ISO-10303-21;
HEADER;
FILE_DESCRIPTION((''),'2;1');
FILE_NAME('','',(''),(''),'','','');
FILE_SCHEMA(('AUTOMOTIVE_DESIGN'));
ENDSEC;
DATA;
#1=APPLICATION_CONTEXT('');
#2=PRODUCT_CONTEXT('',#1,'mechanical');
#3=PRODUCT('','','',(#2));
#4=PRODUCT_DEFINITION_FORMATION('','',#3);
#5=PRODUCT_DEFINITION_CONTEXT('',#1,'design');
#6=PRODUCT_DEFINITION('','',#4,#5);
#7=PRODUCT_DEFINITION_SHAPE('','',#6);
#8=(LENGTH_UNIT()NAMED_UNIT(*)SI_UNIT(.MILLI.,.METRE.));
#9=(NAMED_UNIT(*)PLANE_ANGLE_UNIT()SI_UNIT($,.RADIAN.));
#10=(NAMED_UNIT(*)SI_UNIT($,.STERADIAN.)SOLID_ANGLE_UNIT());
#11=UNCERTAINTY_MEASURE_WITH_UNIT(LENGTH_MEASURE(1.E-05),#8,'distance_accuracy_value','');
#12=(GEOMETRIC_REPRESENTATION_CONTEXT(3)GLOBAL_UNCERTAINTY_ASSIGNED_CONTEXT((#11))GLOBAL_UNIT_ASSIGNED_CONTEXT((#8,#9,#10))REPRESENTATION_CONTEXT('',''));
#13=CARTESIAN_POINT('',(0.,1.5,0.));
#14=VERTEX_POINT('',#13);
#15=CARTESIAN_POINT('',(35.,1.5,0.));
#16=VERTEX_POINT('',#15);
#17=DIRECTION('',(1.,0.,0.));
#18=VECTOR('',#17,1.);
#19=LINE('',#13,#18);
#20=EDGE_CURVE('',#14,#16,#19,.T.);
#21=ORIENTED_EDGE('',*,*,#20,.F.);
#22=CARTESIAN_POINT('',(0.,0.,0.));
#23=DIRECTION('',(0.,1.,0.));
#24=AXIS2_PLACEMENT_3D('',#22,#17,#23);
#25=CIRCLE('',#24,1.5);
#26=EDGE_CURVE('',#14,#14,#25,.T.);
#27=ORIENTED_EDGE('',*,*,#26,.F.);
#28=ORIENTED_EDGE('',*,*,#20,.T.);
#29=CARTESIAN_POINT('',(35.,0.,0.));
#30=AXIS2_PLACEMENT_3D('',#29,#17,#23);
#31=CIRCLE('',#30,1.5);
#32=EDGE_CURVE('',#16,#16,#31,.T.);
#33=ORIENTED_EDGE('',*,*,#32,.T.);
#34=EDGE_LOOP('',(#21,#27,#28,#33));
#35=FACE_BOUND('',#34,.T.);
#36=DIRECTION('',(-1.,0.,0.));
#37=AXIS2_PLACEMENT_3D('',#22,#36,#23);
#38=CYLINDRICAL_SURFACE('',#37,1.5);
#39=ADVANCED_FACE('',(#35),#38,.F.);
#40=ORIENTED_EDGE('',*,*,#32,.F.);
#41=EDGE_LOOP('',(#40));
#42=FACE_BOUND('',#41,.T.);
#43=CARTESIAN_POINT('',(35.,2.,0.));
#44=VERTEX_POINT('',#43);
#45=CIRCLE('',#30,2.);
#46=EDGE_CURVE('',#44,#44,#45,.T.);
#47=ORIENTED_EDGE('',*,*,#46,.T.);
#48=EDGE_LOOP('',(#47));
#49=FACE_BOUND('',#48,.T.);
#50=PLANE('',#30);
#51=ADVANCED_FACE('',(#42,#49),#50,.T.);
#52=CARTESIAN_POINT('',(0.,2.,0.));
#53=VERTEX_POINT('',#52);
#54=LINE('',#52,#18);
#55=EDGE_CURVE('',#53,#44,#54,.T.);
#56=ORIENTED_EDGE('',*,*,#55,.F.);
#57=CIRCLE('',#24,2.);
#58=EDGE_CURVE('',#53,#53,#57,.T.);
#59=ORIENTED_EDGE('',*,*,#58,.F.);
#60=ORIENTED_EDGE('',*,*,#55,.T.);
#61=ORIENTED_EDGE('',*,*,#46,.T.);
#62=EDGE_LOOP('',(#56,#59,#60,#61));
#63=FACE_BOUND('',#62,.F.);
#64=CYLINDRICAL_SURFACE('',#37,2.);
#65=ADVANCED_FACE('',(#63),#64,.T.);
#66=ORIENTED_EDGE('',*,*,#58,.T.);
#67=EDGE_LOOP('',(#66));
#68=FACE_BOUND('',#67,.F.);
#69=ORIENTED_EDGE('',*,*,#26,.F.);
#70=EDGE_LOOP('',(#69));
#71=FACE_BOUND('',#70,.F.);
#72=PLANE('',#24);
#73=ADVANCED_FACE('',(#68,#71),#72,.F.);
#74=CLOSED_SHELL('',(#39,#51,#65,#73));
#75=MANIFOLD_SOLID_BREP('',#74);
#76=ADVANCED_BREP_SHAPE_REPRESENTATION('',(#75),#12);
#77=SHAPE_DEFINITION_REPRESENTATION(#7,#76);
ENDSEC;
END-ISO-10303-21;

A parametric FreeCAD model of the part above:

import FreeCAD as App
import Part
import Sketcher

V = App.Vector

doc = App.newDocument("Part")
params = doc.addObject("Spreadsheet::Sheet", "Params")
for row, (alias, value) in enumerate([
    ("sketch1_diameter", "4 mm"),
    ("sketch1_diameter2", "3 mm"),
    ("pad1_length", "35 mm"),
], start=1):
    params.set(f"A{row}", alias)
    params.set(f"B{row}", "=" + value)
    params.setAlias(f"B{row}", alias)

body = doc.addObject("PartDesign::Body", "Body")

# Sketch on YZ plane
sketch1 = body.newObject("Sketcher::SketchObject", "Sketch")
sketch1.AttachmentSupport = (doc.getObject("YZ_Plane"), [""])
sketch1.MapMode = "FlatFace"
sketch1.addGeometry(Part.Circle(V(0, 0, 0), V(0, 0, 1), 2), False)
sketch1.addGeometry(Part.Circle(V(0, 0, 0), V(0, 0, 1), 1.5), False)
sketch1.addConstraint(Sketcher.Constraint("Coincident", 0, 3, -1, 1))
sketch1.addConstraint(Sketcher.Constraint("Coincident", 1, 3, -1, 1))
sketch1.addConstraint(Sketcher.Constraint("Diameter", 0, 4.0))
sketch1.addConstraint(Sketcher.Constraint("Diameter", 1, 3.0))
sketch1.setExpression("Constraints[2]", "Params.sketch1_diameter")
sketch1.setExpression("Constraints[3]", "Params.sketch1_diameter2")
pad1 = body.newObject("PartDesign::Pad", "Pad")
pad1.Profile = sketch1
pad1.setExpression("Length", "Params.pad1_length")

doc.recompute()
